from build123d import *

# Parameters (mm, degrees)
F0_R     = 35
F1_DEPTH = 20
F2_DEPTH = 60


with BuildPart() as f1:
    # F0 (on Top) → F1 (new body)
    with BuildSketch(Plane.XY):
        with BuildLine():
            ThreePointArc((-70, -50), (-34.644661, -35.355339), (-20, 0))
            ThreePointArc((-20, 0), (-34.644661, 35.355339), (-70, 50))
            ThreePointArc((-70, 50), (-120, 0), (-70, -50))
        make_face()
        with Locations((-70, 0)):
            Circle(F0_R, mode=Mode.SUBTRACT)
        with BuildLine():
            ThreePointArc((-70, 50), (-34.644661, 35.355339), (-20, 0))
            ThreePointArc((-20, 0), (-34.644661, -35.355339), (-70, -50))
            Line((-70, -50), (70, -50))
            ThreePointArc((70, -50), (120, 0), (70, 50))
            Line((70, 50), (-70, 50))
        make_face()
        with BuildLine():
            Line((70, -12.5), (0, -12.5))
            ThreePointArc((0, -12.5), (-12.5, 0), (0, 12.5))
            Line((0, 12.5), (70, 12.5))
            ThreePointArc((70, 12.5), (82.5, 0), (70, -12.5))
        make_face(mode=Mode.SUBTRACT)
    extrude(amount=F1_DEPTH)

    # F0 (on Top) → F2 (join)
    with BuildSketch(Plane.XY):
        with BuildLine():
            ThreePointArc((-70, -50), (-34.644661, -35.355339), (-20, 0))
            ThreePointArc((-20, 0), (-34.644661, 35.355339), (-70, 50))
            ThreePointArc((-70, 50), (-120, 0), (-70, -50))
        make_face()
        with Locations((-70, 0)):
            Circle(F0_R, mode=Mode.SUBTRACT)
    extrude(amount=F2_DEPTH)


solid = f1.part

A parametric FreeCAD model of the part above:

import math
import FreeCAD as App
import Part
import Sketcher
from FreeCAD import Vector

doc = App.newDocument("Part")
body = doc.addObject("PartDesign::Body", "Body")

sketch1 = body.newObject("Sketcher::SketchObject", "Sketch")
sketch1.AttachmentSupport = (doc.getObject("XY_Plane"), [""])
sketch1.MapMode = "FlatFace"
sketch1.addGeometry(Part.ArcOfCircle(Part.Circle(Vector(-70, 0, 0), Vector(0, 0, 1), 50), math.radians(90), math.radians(270)), False)
sketch1.addGeometry(Part.LineSegment(Vector(-70, -50, 0), Vector(70, -50, 0)), False)
sketch1.addGeometry(Part.ArcOfCircle(Part.Circle(Vector(70, 0, 0), Vector(0, 0, 1), 50), math.radians(-90), math.radians(90)), False)
sketch1.addGeometry(Part.LineSegment(Vector(70, 50, 0), Vector(-70, 50, 0)), False)
sketch1.addGeometry(Part.Circle(Vector(-70, 0, 0), Vector(0, 0, 1), 35), False)
sketch1.addGeometry(Part.ArcOfCircle(Part.Circle(Vector(70, 0, 0), Vector(0, 0, 1), 12.5), math.radians(-90), math.radians(90)), False)
sketch1.addGeometry(Part.LineSegment(Vector(70, -12.5, 0), Vector(0, -12.5, 0)), False)
sketch1.addGeometry(Part.ArcOfCircle(Part.Circle(Vector(0, 0, 0), Vector(0, 0, 1), 12.5), math.radians(90), math.radians(270)), False)
sketch1.addGeometry(Part.LineSegment(Vector(0, 12.5, 0), Vector(70, 12.5, 0)), False)
sketch1.addConstraint(Sketcher.Constraint("Tangent", 0, 2, 1, 1))
sketch1.addConstraint(Sketcher.Constraint("Tangent", 1, 2, 2, 1))
sketch1.addConstraint(Sketcher.Constraint("Tangent", 2, 2, 3, 1))
sketch1.addConstraint(Sketcher.Constraint("Tangent", 3, 2, 0, 1))
sketch1.addConstraint(Sketcher.Constraint("Tangent", 5, 1, 6, 1))
sketch1.addConstraint(Sketcher.Constraint("Tangent", 6, 2, 7, 2))
sketch1.addConstraint(Sketcher.Constraint("Tangent", 7, 1, 8, 1))
sketch1.addConstraint(Sketcher.Constraint("Tangent", 8, 2, 5, 2))
sketch1.addConstraint(Sketcher.Constraint("Horizontal", 1))
sketch1.addConstraint(Sketcher.Constraint("Horizontal", 3))
sketch1.addConstraint(Sketcher.Constraint("Horizontal", 6))
sketch1.addConstraint(Sketcher.Constraint("Horizontal", 8))
sketch1.addConstraint(Sketcher.Constraint("Coincident", 7, 3, -1, 1))
sketch1.addConstraint(Sketcher.Constraint("Coincident", 4, 3, 0, 3))
sketch1.addConstraint(Sketcher.Constraint("Coincident", 5, 3, 2, 3))
sketch1.addConstraint(Sketcher.Constraint("Diameter", 4, 70.0))
sketch1.addConstraint(Sketcher.Constraint("Radius", 0, 50.0))
sketch1.addConstraint(Sketcher.Constraint("Radius", 5, 12.5))
sketch1.addConstraint(Sketcher.Constraint("DistanceX", 1, 1, 1, 2, 140.0))
sketch1.addConstraint(Sketcher.Constraint("DistanceX", 6, 2, 6, 1, 70.0))
pad1 = body.newObject("PartDesign::Pad", "Pad")
pad1.Profile = sketch1
pad1.Length = 20

sketch2 = body.newObject("Sketcher::SketchObject", "Sketch001")
sketch2.AttachmentSupport = (doc.getObject("XY_Plane"), [""])
sketch2.MapMode = "FlatFace"
sketch2.addGeometry(Part.ArcOfCircle(Part.Circle(Vector(-70, 0, 0), Vector(0, 0, 1), 50), math.radians(-90), math.radians(0)), False)
sketch2.addGeometry(Part.ArcOfCircle(Part.Circle(Vector(-70, 0, 0), Vector(0, 0, 1), 50), math.radians(0), math.radians(90)), False)
sketch2.addGeometry(Part.ArcOfCircle(Part.Circle(Vector(-70, 0, 0), Vector(0, 0, 1), 50), math.radians(90), math.radians(270)), False)
sketch2.addGeometry(Part.Circle(Vector(-70, 0, 0), Vector(0, 0, 1), 35), False)
sketch2.addConstraint(Sketcher.Constraint("Tangent", 0, 2, 1, 1))
sketch2.addConstraint(Sketcher.Constraint("Tangent", 1, 2, 2, 1))
sketch2.addConstraint(Sketcher.Constraint("Tangent", 2, 2, 0, 1))
sketch2.addConstraint(Sketcher.Constraint("Coincident", 3, 3, 0, 3))
sketch2.addConstraint(Sketcher.Constraint("Symmetric", 1, 2, 2, 2, -1))
sketch2.addConstraint(Sketcher.Constraint("PointOnObject", 0, 2, -1))
sketch2.addConstraint(Sketcher.Constraint("Vertical", 3, 3, 1, 2))
sketch2.addConstraint(Sketcher.Constraint("Diameter", 3, 70.0))
sketch2.addConstraint(Sketcher.Constraint("Radius", 0, 50.0))
sketch2.addConstraint(Sketcher.Constraint("DistanceX", 0, 3, -1, 1, 70.0))
pad2 = body.newObject("PartDesign::Pad", "Pad001")
pad2.Profile = sketch2
pad2.Length = 60

doc.recompute()
